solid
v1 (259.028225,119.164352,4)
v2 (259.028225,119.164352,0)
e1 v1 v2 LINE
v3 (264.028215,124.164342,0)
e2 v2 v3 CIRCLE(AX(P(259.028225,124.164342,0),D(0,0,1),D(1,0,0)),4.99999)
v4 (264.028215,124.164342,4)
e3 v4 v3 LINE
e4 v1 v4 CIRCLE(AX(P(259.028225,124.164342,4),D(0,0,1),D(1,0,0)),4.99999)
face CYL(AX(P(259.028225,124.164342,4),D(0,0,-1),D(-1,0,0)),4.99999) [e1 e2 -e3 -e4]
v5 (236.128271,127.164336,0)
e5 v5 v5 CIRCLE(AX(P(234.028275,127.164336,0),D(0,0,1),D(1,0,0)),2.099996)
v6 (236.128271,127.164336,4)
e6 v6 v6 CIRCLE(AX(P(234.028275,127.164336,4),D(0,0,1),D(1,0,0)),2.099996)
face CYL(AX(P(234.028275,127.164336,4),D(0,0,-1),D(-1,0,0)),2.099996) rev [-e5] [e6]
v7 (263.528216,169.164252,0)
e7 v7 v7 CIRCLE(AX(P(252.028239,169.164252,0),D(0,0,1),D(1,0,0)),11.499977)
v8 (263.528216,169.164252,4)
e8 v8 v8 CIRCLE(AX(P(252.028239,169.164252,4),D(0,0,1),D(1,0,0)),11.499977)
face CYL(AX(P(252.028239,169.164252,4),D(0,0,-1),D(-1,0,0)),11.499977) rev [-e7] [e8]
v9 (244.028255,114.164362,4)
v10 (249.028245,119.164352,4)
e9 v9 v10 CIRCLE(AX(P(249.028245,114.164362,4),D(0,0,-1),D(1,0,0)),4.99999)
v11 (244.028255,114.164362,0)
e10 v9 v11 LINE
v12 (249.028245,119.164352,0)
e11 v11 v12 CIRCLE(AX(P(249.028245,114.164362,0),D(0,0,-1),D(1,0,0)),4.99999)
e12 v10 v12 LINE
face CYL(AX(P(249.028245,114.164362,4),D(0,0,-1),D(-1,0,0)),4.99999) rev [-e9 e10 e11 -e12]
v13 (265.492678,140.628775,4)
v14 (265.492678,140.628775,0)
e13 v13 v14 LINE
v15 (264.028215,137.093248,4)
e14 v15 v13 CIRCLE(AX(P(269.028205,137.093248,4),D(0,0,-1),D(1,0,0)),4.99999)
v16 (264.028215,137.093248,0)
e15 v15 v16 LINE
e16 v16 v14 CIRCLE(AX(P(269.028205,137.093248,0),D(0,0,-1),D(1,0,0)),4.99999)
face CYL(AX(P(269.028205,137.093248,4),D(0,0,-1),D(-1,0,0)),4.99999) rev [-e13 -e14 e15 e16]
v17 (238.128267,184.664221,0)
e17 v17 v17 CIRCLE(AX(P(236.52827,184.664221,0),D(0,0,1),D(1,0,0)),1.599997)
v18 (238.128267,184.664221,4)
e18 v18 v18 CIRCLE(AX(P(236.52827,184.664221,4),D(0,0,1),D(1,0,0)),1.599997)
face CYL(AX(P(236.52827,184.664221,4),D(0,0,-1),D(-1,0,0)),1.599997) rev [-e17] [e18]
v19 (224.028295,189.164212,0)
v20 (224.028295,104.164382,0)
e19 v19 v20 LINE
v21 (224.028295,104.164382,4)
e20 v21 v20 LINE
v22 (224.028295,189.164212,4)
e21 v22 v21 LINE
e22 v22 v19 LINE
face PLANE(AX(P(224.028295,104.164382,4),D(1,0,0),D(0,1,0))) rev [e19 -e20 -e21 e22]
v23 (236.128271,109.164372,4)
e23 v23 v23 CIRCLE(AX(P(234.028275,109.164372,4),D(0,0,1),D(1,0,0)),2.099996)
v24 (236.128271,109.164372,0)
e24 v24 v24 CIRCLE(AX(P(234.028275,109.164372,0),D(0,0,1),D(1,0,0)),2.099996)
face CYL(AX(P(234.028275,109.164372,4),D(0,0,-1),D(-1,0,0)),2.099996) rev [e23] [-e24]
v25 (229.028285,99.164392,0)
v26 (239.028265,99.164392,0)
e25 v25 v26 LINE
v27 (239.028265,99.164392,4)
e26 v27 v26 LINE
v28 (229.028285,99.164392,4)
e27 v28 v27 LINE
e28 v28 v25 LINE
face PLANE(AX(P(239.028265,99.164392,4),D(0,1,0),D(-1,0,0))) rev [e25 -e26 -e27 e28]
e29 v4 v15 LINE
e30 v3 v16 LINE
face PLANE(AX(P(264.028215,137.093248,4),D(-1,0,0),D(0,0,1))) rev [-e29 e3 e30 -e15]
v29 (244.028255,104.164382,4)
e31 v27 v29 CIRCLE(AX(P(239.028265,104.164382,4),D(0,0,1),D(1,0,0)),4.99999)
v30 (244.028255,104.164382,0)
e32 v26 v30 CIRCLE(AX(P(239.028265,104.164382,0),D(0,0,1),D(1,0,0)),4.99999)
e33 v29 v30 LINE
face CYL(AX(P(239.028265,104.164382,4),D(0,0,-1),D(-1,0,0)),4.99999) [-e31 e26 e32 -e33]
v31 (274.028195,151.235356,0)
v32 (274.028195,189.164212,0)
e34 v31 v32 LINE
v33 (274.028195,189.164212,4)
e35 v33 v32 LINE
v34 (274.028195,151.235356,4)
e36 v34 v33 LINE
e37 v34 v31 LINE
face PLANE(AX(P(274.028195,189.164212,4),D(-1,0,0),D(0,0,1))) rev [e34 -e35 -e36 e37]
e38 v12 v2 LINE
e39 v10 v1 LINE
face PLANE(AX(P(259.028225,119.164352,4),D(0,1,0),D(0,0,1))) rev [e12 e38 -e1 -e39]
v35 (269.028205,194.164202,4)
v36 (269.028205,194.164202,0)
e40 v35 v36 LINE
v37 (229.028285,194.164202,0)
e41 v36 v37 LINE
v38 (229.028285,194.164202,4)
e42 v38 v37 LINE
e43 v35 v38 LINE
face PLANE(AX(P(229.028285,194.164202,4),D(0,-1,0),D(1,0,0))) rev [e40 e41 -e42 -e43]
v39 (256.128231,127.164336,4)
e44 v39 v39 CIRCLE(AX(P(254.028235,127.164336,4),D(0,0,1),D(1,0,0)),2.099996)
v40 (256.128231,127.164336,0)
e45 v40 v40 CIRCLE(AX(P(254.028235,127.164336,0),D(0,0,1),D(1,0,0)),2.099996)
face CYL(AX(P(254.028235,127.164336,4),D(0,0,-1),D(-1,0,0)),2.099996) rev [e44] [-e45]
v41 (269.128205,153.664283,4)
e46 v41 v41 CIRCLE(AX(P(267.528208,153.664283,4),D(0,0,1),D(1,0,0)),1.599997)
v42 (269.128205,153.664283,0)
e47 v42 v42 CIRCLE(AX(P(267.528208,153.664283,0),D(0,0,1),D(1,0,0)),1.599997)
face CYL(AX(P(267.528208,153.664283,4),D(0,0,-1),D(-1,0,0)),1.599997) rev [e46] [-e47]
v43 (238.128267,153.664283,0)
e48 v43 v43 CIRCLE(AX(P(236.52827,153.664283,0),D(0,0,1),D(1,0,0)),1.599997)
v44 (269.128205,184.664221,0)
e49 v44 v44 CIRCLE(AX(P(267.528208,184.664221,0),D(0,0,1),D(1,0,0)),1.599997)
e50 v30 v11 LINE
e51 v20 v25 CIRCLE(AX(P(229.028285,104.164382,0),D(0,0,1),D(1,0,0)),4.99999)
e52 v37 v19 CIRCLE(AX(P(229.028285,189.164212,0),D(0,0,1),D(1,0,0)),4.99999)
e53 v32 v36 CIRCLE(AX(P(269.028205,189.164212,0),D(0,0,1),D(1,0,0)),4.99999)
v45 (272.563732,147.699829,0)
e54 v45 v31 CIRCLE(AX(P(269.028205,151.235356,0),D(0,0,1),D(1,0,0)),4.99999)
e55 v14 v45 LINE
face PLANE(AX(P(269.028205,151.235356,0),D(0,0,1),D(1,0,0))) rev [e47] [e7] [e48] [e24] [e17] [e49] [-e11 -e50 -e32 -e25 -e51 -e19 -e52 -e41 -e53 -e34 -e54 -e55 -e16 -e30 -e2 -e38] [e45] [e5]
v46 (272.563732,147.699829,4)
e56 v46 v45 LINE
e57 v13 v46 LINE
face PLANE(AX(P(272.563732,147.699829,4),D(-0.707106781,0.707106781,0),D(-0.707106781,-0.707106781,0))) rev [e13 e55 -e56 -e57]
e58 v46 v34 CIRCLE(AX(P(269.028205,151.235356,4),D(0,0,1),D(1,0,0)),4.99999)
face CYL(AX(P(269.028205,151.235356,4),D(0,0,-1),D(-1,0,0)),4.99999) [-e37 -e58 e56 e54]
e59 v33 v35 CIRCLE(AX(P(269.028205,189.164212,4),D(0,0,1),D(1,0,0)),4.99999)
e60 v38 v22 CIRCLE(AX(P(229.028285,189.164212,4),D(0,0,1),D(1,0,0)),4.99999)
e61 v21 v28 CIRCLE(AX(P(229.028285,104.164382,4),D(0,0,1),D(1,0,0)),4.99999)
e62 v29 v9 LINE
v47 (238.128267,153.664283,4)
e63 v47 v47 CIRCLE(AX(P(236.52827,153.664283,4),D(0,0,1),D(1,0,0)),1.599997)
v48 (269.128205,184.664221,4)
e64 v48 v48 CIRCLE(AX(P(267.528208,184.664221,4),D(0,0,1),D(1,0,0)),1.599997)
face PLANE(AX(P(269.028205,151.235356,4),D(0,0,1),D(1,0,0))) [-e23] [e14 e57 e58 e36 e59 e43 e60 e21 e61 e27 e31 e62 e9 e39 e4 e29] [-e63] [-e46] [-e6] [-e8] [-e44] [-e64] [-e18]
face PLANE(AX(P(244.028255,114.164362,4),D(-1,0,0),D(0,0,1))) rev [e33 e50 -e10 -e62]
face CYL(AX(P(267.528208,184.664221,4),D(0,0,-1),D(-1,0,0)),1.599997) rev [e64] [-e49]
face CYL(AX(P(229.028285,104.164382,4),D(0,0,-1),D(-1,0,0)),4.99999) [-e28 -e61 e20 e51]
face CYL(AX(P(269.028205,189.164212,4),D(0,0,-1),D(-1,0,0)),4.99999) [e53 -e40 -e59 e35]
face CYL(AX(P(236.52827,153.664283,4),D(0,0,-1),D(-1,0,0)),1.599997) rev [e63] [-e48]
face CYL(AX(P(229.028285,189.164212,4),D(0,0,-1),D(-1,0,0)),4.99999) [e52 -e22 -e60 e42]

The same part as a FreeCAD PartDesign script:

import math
import FreeCAD as App
import Part
import Sketcher
from FreeCAD import Vector
Q = App.Units.Quantity

doc = App.newDocument("Part")
body = doc.addObject("PartDesign::Body", "Body")

sketch1 = body.newObject("Sketcher::SketchObject", "Sketch")
sketch1.AttachmentSupport = (doc.getObject("XY_Plane"), [""])
sketch1.MapMode = "FlatFace"
sketch1.addGeometry(Part.LineSegment(Vector(274, 151.2, 0), Vector(274, 189.2, 0)), False)
sketch1.addGeometry(Part.ArcOfCircle(Part.Circle(Vector(269, 189.2, 0), Vector(0, 0, 1), 5), math.radians(0), math.radians(90)), False)
sketch1.addGeometry(Part.LineSegment(Vector(269, 194.2, 0), Vector(229, 194.2, 0)), False)
sketch1.addGeometry(Part.ArcOfCircle(Part.Circle(Vector(229, 189.2, 0), Vector(0, 0, 1), 5), math.radians(90), math.radians(180)), False)
sketch1.addGeometry(Part.LineSegment(Vector(224, 189.2, 0), Vector(224, 104.2, 0)), False)
sketch1.addGeometry(Part.ArcOfCircle(Part.Circle(Vector(229, 104.2, 0), Vector(0, 0, 1), 5), math.radians(180), math.radians(270)), False)
sketch1.addGeometry(Part.LineSegment(Vector(229, 99.2, 0), Vector(239, 99.2, 0)), False)
sketch1.addGeometry(Part.ArcOfCircle(Part.Circle(Vector(239, 104.2, 0), Vector(0, 0, 1), 5), math.radians(-90), math.radians(0)), False)
sketch1.addGeometry(Part.LineSegment(Vector(244, 104.2, 0), Vector(244, 114.2, 0)), False)
sketch1.addGeometry(Part.ArcOfCircle(Part.Circle(Vector(249, 114.2, 0), Vector(0, 0, 1), 5), math.radians(90), math.radians(180)), False)
sketch1.addGeometry(Part.LineSegment(Vector(249, 119.2, 0), Vector(259, 119.2, 0)), False)
sketch1.addGeometry(Part.ArcOfCircle(Part.Circle(Vector(259, 124.2, 0), Vector(0, 0, 1), 5), math.radians(-90), math.radians(0)), False)
sketch1.addGeometry(Part.LineSegment(Vector(264, 124.2, 0), Vector(264, 137.1, 0)), False)
sketch1.addGeometry(Part.ArcOfCircle(Part.Circle(Vector(269, 137.1, 0), Vector(0, 0, 1), 5), math.radians(135), math.radians(180)), False)
sketch1.addGeometry(Part.LineSegment(Vector(265.5, 140.6, 0), Vector(272.6, 147.7, 0)), False)
sketch1.addGeometry(Part.ArcOfCircle(Part.Circle(Vector(269, 151.2, 0), Vector(0, 0, 1), 5), math.radians(-45), math.radians(0)), False)
sketch1.addGeometry(Part.Circle(Vector(254, 127.2, 0), Vector(0, 0, 1), 2.1), False)
sketch1.addGeometry(Part.Circle(Vector(234, 109.2, 0), Vector(0, 0, 1), 2.1), False)
sketch1.addGeometry(Part.Circle(Vector(234, 127.2, 0), Vector(0, 0, 1), 2.1), False)
sketch1.addGeometry(Part.Circle(Vector(267.5, 153.7, 0), Vector(0, 0, 1), 1.6), False)
sketch1.addGeometry(Part.Circle(Vector(267.5, 184.7, 0), Vector(0, 0, 1), 1.6), False)
sketch1.addGeometry(Part.Circle(Vector(252, 169.2, 0), Vector(0, 0, 1), 11.5), False)
sketch1.addGeometry(Part.Circle(Vector(236.5, 153.7, 0), Vector(0, 0, 1), 1.6), False)
sketch1.addGeometry(Part.Circle(Vector(236.5, 184.7, 0), Vector(0, 0, 1), 1.6), False)
sketch1.addConstraint(Sketcher.Constraint("Tangent", 0, 2, 1, 1))
sketch1.addConstraint(Sketcher.Constraint("Tangent", 1, 2, 2, 1))
sketch1.addConstraint(Sketcher.Constraint("Tangent", 2, 2, 3, 1))
sketch1.addConstraint(Sketcher.Constraint("Tangent", 3, 2, 4, 1))
sketch1.addConstraint(Sketcher.Constraint("Tangent", 4, 2, 5, 1))
sketch1.addConstraint(Sketcher.Constraint("Tangent", 5, 2, 6, 1))
sketch1.addConstraint(Sketcher.Constraint("Tangent", 6, 2, 7, 1))
sketch1.addConstraint(Sketcher.Constraint("Tangent", 7, 2, 8, 1))
sketch1.addConstraint(Sketcher.Constraint("Tangent", 8, 2, 9, 2))
sketch1.addConstraint(Sketcher.Constraint("Tangent", 9, 1, 10, 1))
sketch1.addConstraint(Sketcher.Constraint("Tangent", 10, 2, 11, 1))
sketch1.addConstraint(Sketcher.Constraint("Tangent", 11, 2, 12, 1))
sketch1.addConstraint(Sketcher.Constraint("Tangent", 12, 2, 13, 2))
sketch1.addConstraint(Sketcher.Constraint("Tangent", 13, 1, 14, 1))
sketch1.addConstraint(Sketcher.Constraint("Tangent", 14, 2, 15, 1))
sketch1.addConstraint(Sketcher.Constraint("Tangent", 15, 2, 0, 1))
sketch1.addConstraint(Sketcher.Constraint("Vertical", 0))
sketch1.addConstraint(Sketcher.Constraint("Horizontal", 2))
sketch1.addConstraint(Sketcher.Constraint("Vertical", 4))
sketch1.addConstraint(Sketcher.Constraint("Horizontal", 6))
sketch1.addConstraint(Sketcher.Constraint("Vertical", 8))
sketch1.addConstraint(Sketcher.Constraint("Horizontal", 10))
sketch1.addConstraint(Sketcher.Constraint("Vertical", 12))
sketch1.addConstraint(Sketcher.Constraint("Equal", 1, 3))
sketch1.addConstraint(Sketcher.Constraint("Equal", 3, 5))
sketch1.addConstraint(Sketcher.Constraint("Equal", 5, 7))
sketch1.addConstraint(Sketcher.Constraint("Equal", 7, 9))
sketch1.addConstraint(Sketcher.Constraint("Equal", 9, 11))
sketch1.addConstraint(Sketcher.Constraint("Equal", 11, 13))
sketch1.addConstraint(Sketcher.Constraint("Equal", 13, 15))
sketch1.addConstraint(Sketcher.Constraint("Equal", 16, 17))
sketch1.addConstraint(Sketcher.Constraint("Equal", 17, 18))
sketch1.addConstraint(Sketcher.Constraint("Equal", 19, 20))
sketch1.addConstraint(Sketcher.Constraint("Equal", 20, 22))
sketch1.addConstraint(Sketcher.Constraint("Equal", 22, 23))
sketch1.addConstraint(Sketcher.Constraint("Horizontal", 16, 3, 18, 3))
sketch1.addConstraint(Sketcher.Constraint("Horizontal", 19, 3, 22, 3))
sketch1.addConstraint(Sketcher.Constraint("Horizontal", 20, 3, 23, 3))
sketch1.addConstraint(Sketcher.Constraint("Vertical", 1, 3, 13, 3))
sketch1.addConstraint(Sketcher.Constraint("Vertical", 17, 3, 18, 3))
sketch1.addConstraint(Sketcher.Constraint("Vertical", 19, 3, 20, 3))
sketch1.addConstraint(Sketcher.Constraint("Vertical", 22, 3, 23, 3))
sketch1.addConstraint(Sketcher.Constraint("Equal", 6, 10))
sketch1.addConstraint(Sketcher.Constraint("Equal", 10, 8))
sketch1.addConstraint(Sketcher.Constraint("Angle", 14, Q("45 deg")))
sketch1.addConstraint(Sketcher.Constraint("Diameter", 16, Q("4.199992 mm")))
sketch1.addConstraint(Sketcher.Constraint("Radius", 1, Q("4.99999 mm")))
sketch1.addConstraint(Sketcher.Constraint("Diameter", 19, Q("3.199994 mm")))
sketch1.addConstraint(Sketcher.Constraint("Diameter", 21, Q("22.999954 mm")))
sketch1.addConstraint(Sketcher.Constraint("DistanceX", 2, 2, 2, 1, Q("39.99992 mm")))
sketch1.addConstraint(Sketcher.Constraint("DistanceY", 4, 2, 4, 1, Q("84.99983 mm")))
sketch1.addConstraint(Sketcher.Constraint("DistanceY", -1, 1, 1, 2, Q("194.164202 mm")))
sketch1.addConstraint(Sketcher.Constraint("DistanceY", 0, 1, 0, 2, Q("37.928856 mm")))
sketch1.addConstraint(Sketcher.Constraint("DistanceY", -1, 1, 17, 3, Q("109.164372 mm")))
sketch1.addConstraint(Sketcher.Constraint("DistanceX", -1, 1, 19, 3, Q("267.528208 mm")))
sketch1.addConstraint(Sketcher.Constraint("DistanceY", -1, 1, 20, 3, Q("184.664221 mm")))
sketch1.addConstraint(Sketcher.Constraint("DistanceX", -1, 1, 21, 3, Q("252.028239 mm")))
sketch1.addConstraint(Sketcher.Constraint("DistanceY", -1, 1, 21, 3, Q("169.164252 mm")))
sketch1.addConstraint(Sketcher.Constraint("DistanceX", -1, 1, 22, 3, Q("236.52827 mm")))
sketch1.addConstraint(Sketcher.Constraint("DistanceX", -1, 1, 13, 1, Q("265.492678 mm")))
sketch1.addConstraint(Sketcher.Constraint("DistanceX", 16, 3, 11, 3, Q("4.99999 mm")))
sketch1.addConstraint(Sketcher.Constraint("DistanceY", 16, 3, 15, 3, Q("24.07102 mm")))
sketch1.addConstraint(Sketcher.Constraint("DistanceX", 17, 3, 7, 3, Q("4.99999 mm")))
sketch1.addConstraint(Sketcher.Constraint("DistanceY", 11, 3, 19, 3, Q("29.499941 mm")))
pad1 = body.newObject("PartDesign::Pad", "Pad")
pad1.Profile = sketch1
pad1.Length = 4

doc.recompute()
